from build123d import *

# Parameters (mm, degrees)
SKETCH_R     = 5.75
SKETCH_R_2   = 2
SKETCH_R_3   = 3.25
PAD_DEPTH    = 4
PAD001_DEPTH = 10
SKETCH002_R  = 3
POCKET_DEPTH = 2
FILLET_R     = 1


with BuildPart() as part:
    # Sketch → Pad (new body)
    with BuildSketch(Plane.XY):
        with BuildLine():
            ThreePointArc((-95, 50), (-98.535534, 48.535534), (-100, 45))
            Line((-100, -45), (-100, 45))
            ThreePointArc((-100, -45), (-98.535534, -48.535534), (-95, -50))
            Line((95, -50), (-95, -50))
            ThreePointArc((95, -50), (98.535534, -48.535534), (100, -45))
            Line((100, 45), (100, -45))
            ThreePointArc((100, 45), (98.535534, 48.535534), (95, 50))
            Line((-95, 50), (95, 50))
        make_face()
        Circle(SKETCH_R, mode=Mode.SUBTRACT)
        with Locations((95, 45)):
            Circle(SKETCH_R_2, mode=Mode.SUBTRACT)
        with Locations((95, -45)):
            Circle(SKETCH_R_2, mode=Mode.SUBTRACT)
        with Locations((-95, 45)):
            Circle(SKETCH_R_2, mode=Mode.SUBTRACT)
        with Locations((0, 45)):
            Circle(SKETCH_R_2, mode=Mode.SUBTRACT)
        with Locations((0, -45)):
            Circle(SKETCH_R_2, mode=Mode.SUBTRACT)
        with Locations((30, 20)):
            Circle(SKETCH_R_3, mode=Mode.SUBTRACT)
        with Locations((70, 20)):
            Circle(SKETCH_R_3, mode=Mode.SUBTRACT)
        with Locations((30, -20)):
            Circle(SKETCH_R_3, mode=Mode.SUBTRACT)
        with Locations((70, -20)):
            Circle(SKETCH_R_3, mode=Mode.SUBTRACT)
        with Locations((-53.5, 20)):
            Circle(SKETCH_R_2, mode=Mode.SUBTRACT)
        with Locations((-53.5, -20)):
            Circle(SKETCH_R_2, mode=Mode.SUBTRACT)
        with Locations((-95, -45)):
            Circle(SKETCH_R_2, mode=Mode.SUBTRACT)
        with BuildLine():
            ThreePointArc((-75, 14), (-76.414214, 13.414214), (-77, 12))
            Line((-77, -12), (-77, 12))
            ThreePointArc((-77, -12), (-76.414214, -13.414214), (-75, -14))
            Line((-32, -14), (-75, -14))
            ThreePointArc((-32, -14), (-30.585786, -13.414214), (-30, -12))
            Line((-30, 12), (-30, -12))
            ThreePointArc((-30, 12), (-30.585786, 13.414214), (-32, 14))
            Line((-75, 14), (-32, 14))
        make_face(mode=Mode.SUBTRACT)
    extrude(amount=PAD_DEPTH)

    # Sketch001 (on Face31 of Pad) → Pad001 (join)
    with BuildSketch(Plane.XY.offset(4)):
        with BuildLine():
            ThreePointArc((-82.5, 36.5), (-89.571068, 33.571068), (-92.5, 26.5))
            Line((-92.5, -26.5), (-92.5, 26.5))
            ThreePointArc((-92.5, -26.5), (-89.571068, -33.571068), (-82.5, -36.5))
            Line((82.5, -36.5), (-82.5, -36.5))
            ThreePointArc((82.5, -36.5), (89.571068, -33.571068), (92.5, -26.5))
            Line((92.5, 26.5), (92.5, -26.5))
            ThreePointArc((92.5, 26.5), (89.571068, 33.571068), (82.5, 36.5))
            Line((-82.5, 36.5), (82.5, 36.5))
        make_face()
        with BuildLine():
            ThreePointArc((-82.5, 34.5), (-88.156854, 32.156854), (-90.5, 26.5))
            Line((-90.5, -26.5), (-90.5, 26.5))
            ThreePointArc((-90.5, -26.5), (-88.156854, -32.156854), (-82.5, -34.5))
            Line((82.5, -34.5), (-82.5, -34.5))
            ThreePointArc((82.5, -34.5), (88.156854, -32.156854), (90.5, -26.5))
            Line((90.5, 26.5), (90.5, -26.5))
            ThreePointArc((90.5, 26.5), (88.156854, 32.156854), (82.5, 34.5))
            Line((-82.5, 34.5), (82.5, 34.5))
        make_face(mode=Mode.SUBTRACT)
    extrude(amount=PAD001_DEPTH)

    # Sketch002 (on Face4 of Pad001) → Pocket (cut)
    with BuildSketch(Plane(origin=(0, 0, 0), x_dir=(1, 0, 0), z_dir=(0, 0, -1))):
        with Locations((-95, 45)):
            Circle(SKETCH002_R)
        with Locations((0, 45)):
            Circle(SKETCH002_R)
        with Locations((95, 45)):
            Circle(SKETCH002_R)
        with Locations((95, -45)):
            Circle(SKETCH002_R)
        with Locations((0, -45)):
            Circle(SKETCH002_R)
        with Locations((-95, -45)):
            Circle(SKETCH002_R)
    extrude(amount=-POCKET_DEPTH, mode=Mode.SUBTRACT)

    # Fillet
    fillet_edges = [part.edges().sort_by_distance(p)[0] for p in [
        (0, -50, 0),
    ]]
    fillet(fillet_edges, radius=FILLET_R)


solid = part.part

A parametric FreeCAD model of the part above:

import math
import FreeCAD as App
import Part
import Sketcher

V = App.Vector
Q = App.Units.Quantity


def edges_at(feature, points):
    """Names of the edges that pass closest to the given points."""
    edges = feature.Shape.Edges
    near = lambda p: min(range(len(edges)), key=lambda i: edges[i].distToShape(Part.Vertex(*p))[0])
    return sorted({f"Edge{near(p) + 1}" for p in points})

doc = App.newDocument("Part")
body = doc.addObject("PartDesign::Body", "Body")

sketch1 = body.newObject("Sketcher::SketchObject", "Sketch")
sketch1.AttachmentSupport = (doc.getObject("XY_Plane"), [""])
sketch1.MapMode = "FlatFace"
sketch1.addGeometry([
    Part.ArcOfCircle(Part.Circle(V(-95, 45, 0), V(0, 0, 1), 5), math.radians(90), math.radians(180)),
    Part.LineSegment(V(-100, 45, 0), V(-100, -45, 0)),
    Part.ArcOfCircle(Part.Circle(V(-95, -45, 0), V(0, 0, 1), 5), math.radians(180), math.radians(270)),
    Part.LineSegment(V(-95, -50, 0), V(95, -50, 0)),
    Part.ArcOfCircle(Part.Circle(V(95, -45, 0), V(0, 0, 1), 5), math.radians(-90), math.radians(0)),
    Part.LineSegment(V(100, -45, 0), V(100, 45, 0)),
    Part.ArcOfCircle(Part.Circle(V(95, 45, 0), V(0, 0, 1), 5), math.radians(0), math.radians(90)),
    Part.LineSegment(V(95, 50, 0), V(-95, 50, 0)),
    Part.Circle(V(-95, -45, 0), V(0, 0, 1), 2),
    Part.Circle(V(-53.5, -20, 0), V(0, 0, 1), 2),
    Part.Circle(V(0, -45, 0), V(0, 0, 1), 2),
    Part.Circle(V(95, -45, 0), V(0, 0, 1), 2),
    Part.Circle(V(30, -20, 0), V(0, 0, 1), 3.2),
    Part.Circle(V(70, -20, 0), V(0, 0, 1), 3.2),
    Part.ArcOfCircle(Part.Circle(V(-75, 12, 0), V(0, 0, 1), 2), math.radians(90), math.radians(180)),
    Part.LineSegment(V(-75, 14, 0), V(-32, 14, 0)),
    Part.ArcOfCircle(Part.Circle(V(-32, 12, 0), V(0, 0, 1), 2), math.radians(0), math.radians(90)),
    Part.LineSegment(V(-30, 12, 0), V(-30, -12, 0)),
    Part.ArcOfCircle(Part.Circle(V(-32, -12, 0), V(0, 0, 1), 2), math.radians(-90), math.radians(0)),
    Part.LineSegment(V(-32, -14, 0), V(-75, -14, 0)),
    Part.ArcOfCircle(Part.Circle(V(-75, -12, 0), V(0, 0, 1), 2), math.radians(180), math.radians(270)),
    Part.LineSegment(V(-77, -12, 0), V(-77, 12, 0)),
    Part.Circle(V(-53.5, 20, 0), V(0, 0, 1), 2),
    Part.Circle(V(-95, 45, 0), V(0, 0, 1), 2),
    Part.Circle(V(0, 0, 0), V(0, 0, 1), 5.8),
    Part.Circle(V(30, 20, 0), V(0, 0, 1), 3.2),
    Part.Circle(V(70, 20, 0), V(0, 0, 1), 3.2),
    Part.Circle(V(0, 45, 0), V(0, 0, 1), 2),
    Part.Circle(V(95, 45, 0), V(0, 0, 1), 2),
], False)
sketch1.addConstraint([
    Sketcher.Constraint("Tangent", 0, 2, 1, 1),
    Sketcher.Constraint("Tangent", 1, 2, 2, 1),
    Sketcher.Constraint("Tangent", 2, 2, 3, 1),
    Sketcher.Constraint("Tangent", 3, 2, 4, 1),
    Sketcher.Constraint("Tangent", 4, 2, 5, 1),
    Sketcher.Constraint("Tangent", 5, 2, 6, 1),
    Sketcher.Constraint("Tangent", 6, 2, 7, 1),
    Sketcher.Constraint("Tangent", 7, 2, 0, 1),
    Sketcher.Constraint("Tangent", 14, 1, 15, 1),
    Sketcher.Constraint("Tangent", 15, 2, 16, 2),
    Sketcher.Constraint("Tangent", 16, 1, 17, 1),
    Sketcher.Constraint("Tangent", 17, 2, 18, 2),
    Sketcher.Constraint("Tangent", 18, 1, 19, 1),
    Sketcher.Constraint("Tangent", 19, 2, 20, 2),
    Sketcher.Constraint("Tangent", 20, 1, 21, 1),
    Sketcher.Constraint("Tangent", 21, 2, 14, 2),
    Sketcher.Constraint("Vertical", 1),
    Sketcher.Constraint("Horizontal", 3),
    Sketcher.Constraint("Vertical", 5),
    Sketcher.Constraint("Horizontal", 7),
    Sketcher.Constraint("Horizontal", 15),
    Sketcher.Constraint("Vertical", 17),
    Sketcher.Constraint("Horizontal", 19),
    Sketcher.Constraint("Vertical", 21),
    Sketcher.Constraint("Coincident", 24, 3, -1, 1),
    Sketcher.Constraint("Coincident", 8, 3, 2, 3),
    Sketcher.Constraint("Coincident", 11, 3, 4, 3),
    Sketcher.Constraint("Coincident", 23, 3, 0, 3),
    Sketcher.Constraint("Coincident", 28, 3, 6, 3),
    Sketcher.Constraint("Equal", 0, 2),
    Sketcher.Constraint("Equal", 2, 4),
    Sketcher.Constraint("Equal", 4, 6),
    Sketcher.Constraint("Equal", 8, 9),
    Sketcher.Constraint("Equal", 9, 10),
    Sketcher.Constraint("Equal", 10, 11),
    Sketcher.Constraint("Equal", 12, 13),
    Sketcher.Constraint("Equal", 11, 14),
    Sketcher.Constraint("Equal", 14, 16),
    Sketcher.Constraint("Equal", 16, 18),
    Sketcher.Constraint("Equal", 18, 20),
    Sketcher.Constraint("Equal", 20, 22),
    Sketcher.Constraint("Equal", 22, 23),
    Sketcher.Constraint("Equal", 13, 25),
    Sketcher.Constraint("Equal", 25, 26),
    Sketcher.Constraint("Equal", 23, 27),
    Sketcher.Constraint("Equal", 27, 28),
    Sketcher.Constraint("Symmetric", 0, 3, 4, 3, -1, 1),
    Sketcher.Constraint("Symmetric", 10, 3, 27, 3, -1, 1),
    Sketcher.Constraint("Symmetric", 9, 3, 22, 3, -1),
    Sketcher.Constraint("Symmetric", 12, 3, 25, 3, -1),
    Sketcher.Constraint("Symmetric", 13, 3, 26, 3, -1),
    Sketcher.Constraint("PointOnObject", 10, 3, -2),
    Sketcher.Constraint("Horizontal", 8, 3, 10, 3),
    Sketcher.Constraint("Horizontal", 9, 3, 12, 3),
    Sketcher.Constraint("Horizontal", 12, 3, 13, 3),
    Sketcher.Constraint("Diameter", 8, Q("4 mm")),
    Sketcher.Constraint("Radius", 0, Q("5 mm")),
    Sketcher.Constraint("Diameter", 12, Q("6.5 mm")),
    Sketcher.Constraint("Diameter", 24, Q("11.5 mm")),
    Sketcher.Constraint("DistanceX", 3, 1, 3, 2, Q("190 mm")),
    Sketcher.Constraint("DistanceX", 15, 1, 15, 2, Q("43 mm")),
    Sketcher.Constraint("DistanceY", 1, 2, 1, 1, Q("90 mm")),
    Sketcher.Constraint("DistanceY", 17, 2, 17, 1, Q("24 mm")),
    Sketcher.Constraint("DistanceY", 9, 3, -1, 1, Q("20 mm")),
    Sketcher.Constraint("DistanceX", -1, 1, 12, 3, Q("30 mm")),
    Sketcher.Constraint("DistanceX", -1, 1, 13, 3, Q("70 mm")),
    Sketcher.Constraint("DistanceX", 14, 3, -1, 1, Q("75.000001 mm")),
    Sketcher.Constraint("DistanceY", -1, 1, 14, 3, Q("12.000001 mm")),
    Sketcher.Constraint("DistanceX", 9, 3, -1, 1, Q("53.5 mm")),
])
pad1 = body.newObject("PartDesign::Pad", "Pad")
pad1.Profile = sketch1
pad1.Length = 4

sketch2 = body.newObject("Sketcher::SketchObject", "Sketch001")
sketch2.AttachmentSupport = (doc.getObject("XY_Plane"), [""])
sketch2.MapMode = "FlatFace"
sketch2.AttachmentOffset = App.Placement(V(0, 0, 4), App.Rotation())
sketch2.addGeometry([
    Part.ArcOfCircle(Part.Circle(V(-83, 27, 0), V(0, 0, 1), 10), math.radians(90), math.radians(180)),
    Part.LineSegment(V(-92, 26, 0), V(-92, -26, 0)),
    Part.ArcOfCircle(Part.Circle(V(-83, -27, 0), V(0, 0, 1), 10), math.radians(180), math.radians(270)),
    Part.LineSegment(V(-82, -36, 0), V(82, -36, 0)),
    Part.ArcOfCircle(Part.Circle(V(83, -27, 0), V(0, 0, 1), 10), math.radians(-90), math.radians(0)),
    Part.LineSegment(V(92, -26, 0), V(92, 26, 0)),
    Part.ArcOfCircle(Part.Circle(V(83, 27, 0), V(0, 0, 1), 10), math.radians(0), math.radians(90)),
    Part.LineSegment(V(82, 36, 0), V(-82, 36, 0)),
    Part.ArcOfCircle(Part.Circle(V(-82, 26, 0), V(0, 0, 1), 8), math.radians(90), math.radians(180)),
    Part.LineSegment(V(-82, 34, 0), V(82, 34, 0)),
    Part.ArcOfCircle(Part.Circle(V(82, 26, 0), V(0, 0, 1), 8), math.radians(0), math.radians(90)),
    Part.LineSegment(V(90, 26, 0), V(90, -26, 0)),
    Part.ArcOfCircle(Part.Circle(V(82, -26, 0), V(0, 0, 1), 8), math.radians(-90), math.radians(0)),
    Part.LineSegment(V(82, -34, 0), V(-82, -34, 0)),
    Part.ArcOfCircle(Part.Circle(V(-82, -26, 0), V(0, 0, 1), 8), math.radians(-180), math.radians(-90)),
    Part.LineSegment(V(-90, -26, 0), V(-90, 26, 0)),
], False)
sketch2.addConstraint([
    Sketcher.Constraint("Tangent", 0, 2, 1, 1),
    Sketcher.Constraint("Tangent", 1, 2, 2, 1),
    Sketcher.Constraint("Tangent", 2, 2, 3, 1),
    Sketcher.Constraint("Tangent", 3, 2, 4, 1),
    Sketcher.Constraint("Tangent", 4, 2, 5, 1),
    Sketcher.Constraint("Tangent", 5, 2, 6, 1),
    Sketcher.Constraint("Tangent", 6, 2, 7, 1),
    Sketcher.Constraint("Tangent", 7, 2, 0, 1),
    Sketcher.Constraint("Tangent", 8, 1, 9, 1),
    Sketcher.Constraint("Tangent", 9, 2, 10, 2),
    Sketcher.Constraint("Tangent", 10, 1, 11, 1),
    Sketcher.Constraint("Tangent", 11, 2, 12, 2),
    Sketcher.Constraint("Tangent", 12, 1, 13, 1),
    Sketcher.Constraint("Tangent", 13, 2, 14, 2),
    Sketcher.Constraint("Tangent", 14, 1, 15, 1),
    Sketcher.Constraint("Tangent", 15, 2, 8, 2),
    Sketcher.Constraint("Vertical", 1),
    Sketcher.Constraint("Horizontal", 3),
    Sketcher.Constraint("Vertical", 5),
    Sketcher.Constraint("Horizontal", 7),
    Sketcher.Constraint("Horizontal", 9),
    Sketcher.Constraint("Vertical", 11),
    Sketcher.Constraint("Horizontal", 13),
    Sketcher.Constraint("Vertical", 15),
    Sketcher.Constraint("Coincident", 8, 3, 0, 3),
    Sketcher.Constraint("Coincident", 10, 3, 6, 3),
    Sketcher.Constraint("Coincident", 12, 3, 4, 3),
    Sketcher.Constraint("Equal", 0, 2),
    Sketcher.Constraint("Equal", 2, 4),
    Sketcher.Constraint("Equal", 4, 6),
    Sketcher.Constraint("Equal", 12, 14),
    Sketcher.Constraint("Symmetric", 0, 3, 4, 3, -1, 1),
    Sketcher.Constraint("Radius", 0, Q("9.999999 mm")),
    Sketcher.Constraint("Radius", 8, Q("8.000001 mm")),
    Sketcher.Constraint("DistanceX", 3, 1, 3, 2, Q("165 mm")),
    Sketcher.Constraint("DistanceY", 1, 2, 1, 1, Q("53 mm")),
])
pad2 = body.newObject("PartDesign::Pad", "Pad001")
pad2.Profile = sketch2
pad2.Length = 10

sketch3 = body.newObject("Sketcher::SketchObject", "Sketch002")
sketch3.AttachmentSupport = (doc.getObject("XY_Plane"), [""])
sketch3.MapMode = "FlatFace"
sketch3.addGeometry([
    Part.Circle(V(-95, -45, 0), V(0, 0, 1), 3),
    Part.Circle(V(0, -45, 0), V(0, 0, 1), 3),
    Part.Circle(V(95, -45, 0), V(0, 0, 1), 3),
    Part.Circle(V(95, 45, 0), V(0, 0, 1), 3),
    Part.Circle(V(0, 45, 0), V(0, 0, 1), 3),
    Part.Circle(V(-95, 45, 0), V(0, 0, 1), 3),
], False)
sketch3.addConstraint([
    Sketcher.Constraint("Equal", 0, 1),
    Sketcher.Constraint("Equal", 1, 2),
    Sketcher.Constraint("Equal", 2, 3),
    Sketcher.Constraint("Equal", 3, 4),
    Sketcher.Constraint("Equal", 4, 5),
    Sketcher.Constraint("Symmetric", 0, 3, 3, 3, -1, 1),
    Sketcher.Constraint("Symmetric", 1, 3, 4, 3, -1, 1),
    Sketcher.Constraint("Symmetric", 2, 3, 5, 3, -1, 1),
    Sketcher.Constraint("Symmetric", 0, 3, 2, 3, -2),
    Sketcher.Constraint("PointOnObject", 1, 3, -2),
    Sketcher.Constraint("Horizontal", 0, 3, 1, 3),
    Sketcher.Constraint("Diameter", 0, Q("6 mm")),
    Sketcher.Constraint("DistanceX", 0, 3, -1, 1, Q("95 mm")),
    Sketcher.Constraint("DistanceY", 0, 3, -1, 1, Q("45 mm")),
])
pocket1 = body.newObject("PartDesign::Pocket", "Pocket")
pocket1.Profile = sketch3
pocket1.Length = 2
pocket1.Reversed = True
doc.recompute()

fillet = body.newObject("PartDesign::Fillet", "Fillet")
fillet.Base = (pocket1, edges_at(pocket1, [(0, -50, 0)]))
fillet.Radius = 1

doc.recompute()
